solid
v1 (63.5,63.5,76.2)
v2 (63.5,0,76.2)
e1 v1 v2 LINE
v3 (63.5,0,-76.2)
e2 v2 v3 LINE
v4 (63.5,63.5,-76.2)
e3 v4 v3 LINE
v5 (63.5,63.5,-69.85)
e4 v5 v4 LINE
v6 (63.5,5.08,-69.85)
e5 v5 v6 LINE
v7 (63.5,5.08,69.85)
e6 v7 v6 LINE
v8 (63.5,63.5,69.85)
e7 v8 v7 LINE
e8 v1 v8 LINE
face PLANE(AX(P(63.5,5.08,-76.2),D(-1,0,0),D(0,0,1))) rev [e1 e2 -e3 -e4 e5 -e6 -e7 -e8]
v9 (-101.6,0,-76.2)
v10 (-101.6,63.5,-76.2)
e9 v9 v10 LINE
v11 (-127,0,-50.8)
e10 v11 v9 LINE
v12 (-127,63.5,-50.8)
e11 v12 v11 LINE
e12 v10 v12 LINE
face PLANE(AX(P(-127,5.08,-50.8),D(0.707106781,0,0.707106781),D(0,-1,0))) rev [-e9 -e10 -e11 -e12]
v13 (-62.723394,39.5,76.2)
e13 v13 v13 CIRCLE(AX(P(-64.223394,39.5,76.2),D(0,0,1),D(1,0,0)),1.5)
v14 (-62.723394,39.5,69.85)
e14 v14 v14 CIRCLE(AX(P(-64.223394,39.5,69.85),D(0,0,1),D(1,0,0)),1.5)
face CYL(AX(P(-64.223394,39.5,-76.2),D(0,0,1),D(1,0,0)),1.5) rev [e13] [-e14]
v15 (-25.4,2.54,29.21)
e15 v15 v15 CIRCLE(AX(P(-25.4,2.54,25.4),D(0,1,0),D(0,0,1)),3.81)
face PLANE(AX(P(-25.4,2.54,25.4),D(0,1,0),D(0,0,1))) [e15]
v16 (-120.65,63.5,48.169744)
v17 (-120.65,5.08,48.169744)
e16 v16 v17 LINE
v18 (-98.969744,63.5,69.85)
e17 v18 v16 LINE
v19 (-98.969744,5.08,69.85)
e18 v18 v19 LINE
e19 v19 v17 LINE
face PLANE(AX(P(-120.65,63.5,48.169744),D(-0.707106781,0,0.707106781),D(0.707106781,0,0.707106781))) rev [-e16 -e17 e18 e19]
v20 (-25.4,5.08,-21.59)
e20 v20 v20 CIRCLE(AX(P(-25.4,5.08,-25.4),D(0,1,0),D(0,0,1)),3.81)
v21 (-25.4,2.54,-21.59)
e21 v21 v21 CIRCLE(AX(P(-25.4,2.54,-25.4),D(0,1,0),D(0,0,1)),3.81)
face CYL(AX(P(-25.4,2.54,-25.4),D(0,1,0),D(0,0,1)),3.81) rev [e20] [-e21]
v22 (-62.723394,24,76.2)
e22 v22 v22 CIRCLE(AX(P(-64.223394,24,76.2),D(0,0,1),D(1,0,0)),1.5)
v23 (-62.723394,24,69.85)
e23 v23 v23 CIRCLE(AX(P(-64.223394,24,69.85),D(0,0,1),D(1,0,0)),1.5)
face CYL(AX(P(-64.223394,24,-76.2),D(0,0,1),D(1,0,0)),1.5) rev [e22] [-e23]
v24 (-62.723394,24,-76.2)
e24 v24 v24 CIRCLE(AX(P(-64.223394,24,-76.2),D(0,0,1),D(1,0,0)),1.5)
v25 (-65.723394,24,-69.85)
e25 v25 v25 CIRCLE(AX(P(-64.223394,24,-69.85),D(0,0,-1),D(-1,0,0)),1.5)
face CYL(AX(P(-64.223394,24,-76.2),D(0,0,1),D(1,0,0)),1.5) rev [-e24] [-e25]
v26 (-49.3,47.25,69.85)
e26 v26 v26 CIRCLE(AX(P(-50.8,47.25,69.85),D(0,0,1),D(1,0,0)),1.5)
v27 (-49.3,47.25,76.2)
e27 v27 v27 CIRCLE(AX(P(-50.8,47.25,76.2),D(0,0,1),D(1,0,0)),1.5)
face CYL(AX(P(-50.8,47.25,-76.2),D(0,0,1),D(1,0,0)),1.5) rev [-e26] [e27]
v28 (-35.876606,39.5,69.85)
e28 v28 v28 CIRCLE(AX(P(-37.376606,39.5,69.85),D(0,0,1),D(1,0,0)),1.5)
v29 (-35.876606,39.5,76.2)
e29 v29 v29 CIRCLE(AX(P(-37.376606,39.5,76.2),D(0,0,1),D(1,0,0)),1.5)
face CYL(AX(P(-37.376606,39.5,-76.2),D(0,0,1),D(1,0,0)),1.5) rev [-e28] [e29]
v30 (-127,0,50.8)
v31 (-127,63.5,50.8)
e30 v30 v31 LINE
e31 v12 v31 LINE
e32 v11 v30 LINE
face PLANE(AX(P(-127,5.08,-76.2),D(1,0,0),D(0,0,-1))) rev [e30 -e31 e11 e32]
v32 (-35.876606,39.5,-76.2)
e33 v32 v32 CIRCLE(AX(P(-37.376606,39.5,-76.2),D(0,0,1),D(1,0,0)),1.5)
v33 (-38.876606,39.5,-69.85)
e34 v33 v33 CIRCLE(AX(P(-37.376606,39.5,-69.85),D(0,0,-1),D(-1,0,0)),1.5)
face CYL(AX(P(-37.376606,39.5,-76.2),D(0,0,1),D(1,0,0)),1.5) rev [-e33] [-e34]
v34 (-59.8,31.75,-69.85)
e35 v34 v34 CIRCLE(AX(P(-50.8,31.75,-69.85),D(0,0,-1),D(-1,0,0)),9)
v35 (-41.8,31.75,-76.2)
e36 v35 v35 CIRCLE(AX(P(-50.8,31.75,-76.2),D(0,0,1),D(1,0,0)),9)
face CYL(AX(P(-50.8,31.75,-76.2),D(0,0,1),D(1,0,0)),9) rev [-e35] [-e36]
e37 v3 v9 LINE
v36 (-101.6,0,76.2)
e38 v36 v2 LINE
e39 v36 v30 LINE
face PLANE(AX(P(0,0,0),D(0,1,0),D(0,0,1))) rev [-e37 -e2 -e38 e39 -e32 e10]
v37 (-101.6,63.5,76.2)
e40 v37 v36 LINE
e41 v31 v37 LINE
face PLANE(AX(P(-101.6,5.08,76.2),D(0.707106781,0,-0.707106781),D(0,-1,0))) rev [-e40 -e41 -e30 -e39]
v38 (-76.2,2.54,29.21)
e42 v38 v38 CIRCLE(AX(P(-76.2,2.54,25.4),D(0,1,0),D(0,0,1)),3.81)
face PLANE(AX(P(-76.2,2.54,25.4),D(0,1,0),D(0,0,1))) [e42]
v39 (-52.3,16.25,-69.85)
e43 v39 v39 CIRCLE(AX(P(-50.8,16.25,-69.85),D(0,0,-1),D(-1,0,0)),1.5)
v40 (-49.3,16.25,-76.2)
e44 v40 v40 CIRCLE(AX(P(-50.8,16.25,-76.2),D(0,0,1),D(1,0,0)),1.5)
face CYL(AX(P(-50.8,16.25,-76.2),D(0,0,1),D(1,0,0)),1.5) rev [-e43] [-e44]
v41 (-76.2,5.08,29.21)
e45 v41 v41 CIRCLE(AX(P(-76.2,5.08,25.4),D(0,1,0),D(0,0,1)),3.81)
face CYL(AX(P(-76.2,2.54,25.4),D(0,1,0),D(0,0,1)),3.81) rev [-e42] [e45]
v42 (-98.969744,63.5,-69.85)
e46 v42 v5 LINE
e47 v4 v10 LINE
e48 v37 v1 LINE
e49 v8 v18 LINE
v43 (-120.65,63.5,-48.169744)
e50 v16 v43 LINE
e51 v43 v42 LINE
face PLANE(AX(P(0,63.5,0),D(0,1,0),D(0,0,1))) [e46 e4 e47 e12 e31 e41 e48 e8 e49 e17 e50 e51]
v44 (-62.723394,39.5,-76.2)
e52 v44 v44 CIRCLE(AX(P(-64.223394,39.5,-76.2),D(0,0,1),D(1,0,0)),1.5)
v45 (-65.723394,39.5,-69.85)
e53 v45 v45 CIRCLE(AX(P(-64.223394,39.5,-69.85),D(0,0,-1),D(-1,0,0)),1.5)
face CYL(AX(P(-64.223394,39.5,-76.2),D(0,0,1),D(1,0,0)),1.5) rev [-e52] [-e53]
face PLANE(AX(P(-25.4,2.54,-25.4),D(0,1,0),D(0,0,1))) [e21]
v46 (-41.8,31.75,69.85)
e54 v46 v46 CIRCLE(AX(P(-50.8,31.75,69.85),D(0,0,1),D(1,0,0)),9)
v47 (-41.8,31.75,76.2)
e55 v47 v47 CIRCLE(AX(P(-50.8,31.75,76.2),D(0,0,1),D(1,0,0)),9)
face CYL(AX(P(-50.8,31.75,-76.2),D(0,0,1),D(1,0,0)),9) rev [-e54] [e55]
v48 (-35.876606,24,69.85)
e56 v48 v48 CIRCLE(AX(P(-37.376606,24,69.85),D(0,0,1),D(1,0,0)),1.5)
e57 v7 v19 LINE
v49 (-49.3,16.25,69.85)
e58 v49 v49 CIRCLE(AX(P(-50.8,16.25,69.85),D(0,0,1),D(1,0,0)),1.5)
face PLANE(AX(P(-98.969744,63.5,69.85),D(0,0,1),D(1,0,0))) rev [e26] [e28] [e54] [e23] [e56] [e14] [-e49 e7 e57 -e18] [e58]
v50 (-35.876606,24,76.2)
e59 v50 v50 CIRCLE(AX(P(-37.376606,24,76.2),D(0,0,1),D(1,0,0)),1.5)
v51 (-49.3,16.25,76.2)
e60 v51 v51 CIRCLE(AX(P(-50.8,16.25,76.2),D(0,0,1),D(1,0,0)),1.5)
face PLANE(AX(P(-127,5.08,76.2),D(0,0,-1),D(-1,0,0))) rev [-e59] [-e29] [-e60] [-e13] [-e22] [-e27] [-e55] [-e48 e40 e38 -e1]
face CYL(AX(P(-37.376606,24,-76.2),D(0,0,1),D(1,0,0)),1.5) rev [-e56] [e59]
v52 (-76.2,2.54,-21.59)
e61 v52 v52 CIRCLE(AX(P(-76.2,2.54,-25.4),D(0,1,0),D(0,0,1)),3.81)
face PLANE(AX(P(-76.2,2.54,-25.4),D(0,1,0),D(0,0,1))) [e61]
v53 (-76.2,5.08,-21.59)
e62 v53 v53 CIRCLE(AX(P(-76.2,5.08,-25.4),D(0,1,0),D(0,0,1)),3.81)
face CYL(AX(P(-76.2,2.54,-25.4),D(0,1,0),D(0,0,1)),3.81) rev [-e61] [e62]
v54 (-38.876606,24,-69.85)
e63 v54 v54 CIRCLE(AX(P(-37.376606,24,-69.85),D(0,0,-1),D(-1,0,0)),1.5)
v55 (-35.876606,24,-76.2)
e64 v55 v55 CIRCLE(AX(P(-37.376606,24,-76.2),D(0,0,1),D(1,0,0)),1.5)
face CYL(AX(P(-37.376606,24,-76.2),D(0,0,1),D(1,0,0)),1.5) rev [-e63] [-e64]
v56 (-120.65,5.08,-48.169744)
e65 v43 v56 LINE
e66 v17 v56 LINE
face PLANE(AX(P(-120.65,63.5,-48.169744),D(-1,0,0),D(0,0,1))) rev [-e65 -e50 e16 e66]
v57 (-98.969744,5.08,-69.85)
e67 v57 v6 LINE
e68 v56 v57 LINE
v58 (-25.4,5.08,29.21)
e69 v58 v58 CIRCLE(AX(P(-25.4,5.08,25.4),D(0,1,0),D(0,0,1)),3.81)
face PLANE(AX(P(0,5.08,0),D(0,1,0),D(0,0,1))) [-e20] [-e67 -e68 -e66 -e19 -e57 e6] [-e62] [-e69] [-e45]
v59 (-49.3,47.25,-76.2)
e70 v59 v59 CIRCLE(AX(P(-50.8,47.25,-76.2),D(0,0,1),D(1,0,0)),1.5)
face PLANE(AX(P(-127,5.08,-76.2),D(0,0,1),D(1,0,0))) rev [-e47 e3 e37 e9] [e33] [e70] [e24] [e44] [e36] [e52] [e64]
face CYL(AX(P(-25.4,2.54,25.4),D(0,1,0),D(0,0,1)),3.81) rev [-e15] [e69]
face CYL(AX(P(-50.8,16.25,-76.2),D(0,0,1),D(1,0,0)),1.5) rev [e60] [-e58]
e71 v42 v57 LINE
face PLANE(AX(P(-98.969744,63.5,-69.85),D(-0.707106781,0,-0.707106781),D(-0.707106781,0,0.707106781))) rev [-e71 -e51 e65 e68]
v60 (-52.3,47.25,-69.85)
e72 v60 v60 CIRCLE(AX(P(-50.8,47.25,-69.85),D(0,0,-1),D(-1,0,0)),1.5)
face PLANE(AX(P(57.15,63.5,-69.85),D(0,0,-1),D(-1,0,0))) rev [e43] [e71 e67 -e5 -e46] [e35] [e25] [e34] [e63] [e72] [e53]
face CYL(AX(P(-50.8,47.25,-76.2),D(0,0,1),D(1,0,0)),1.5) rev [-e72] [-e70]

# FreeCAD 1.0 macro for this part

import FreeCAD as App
import Part
import Sketcher

V = App.Vector
Q = App.Units.Quantity


def edges_at(feature, points):
    """Names of the edges that pass closest to the given points."""
    edges = feature.Shape.Edges
    near = lambda p: min(range(len(edges)), key=lambda i: edges[i].distToShape(Part.Vertex(*p))[0])
    return sorted({f"Edge{near(p) + 1}" for p in points})


def add_polygon(sketch, points):
    """Adds a closed chain of lines whose ends are joined by coincident constraints."""
    first, n = sketch.GeometryCount, len(points)
    for a, b in zip(points, points[1:] + points[:1]):
        sketch.addGeometry(Part.LineSegment(App.Vector(*a, 0), App.Vector(*b, 0)), False)
    for i in range(n):
        sketch.addConstraint(Sketcher.Constraint("Coincident", first + i, 2, first + (i + 1) % n, 1))

doc = App.newDocument("Part")
body = doc.addObject("PartDesign::Body", "Body")

sketch1 = body.newObject("Sketcher::SketchObject", "Sketch")
sketch1.AttachmentSupport = (doc.getObject("XZ_Plane"), [""])
sketch1.MapMode = "FlatFace"
add_polygon(sketch1, [(-127, -76.2), (-127, 76.2), (63.5, 76.2), (63.5, -76.2)])
sketch1.addConstraint(Sketcher.Constraint("Vertical", 0))
sketch1.addConstraint(Sketcher.Constraint("Horizontal", 1))
sketch1.addConstraint(Sketcher.Constraint("Vertical", 2))
sketch1.addConstraint(Sketcher.Constraint("Horizontal", 3))
sketch1.addConstraint(Sketcher.Constraint("DistanceY", 0, 1, 0, 2, Q("6 in")))
sketch1.addConstraint(Sketcher.Constraint("DistanceX", 1, 1, 1, 2, Q("7.5 in")))
sketch1.addConstraint(Sketcher.Constraint("DistanceX", 0, 2, -1, 1, Q("5 in")))
sketch1.addConstraint(Sketcher.Constraint("DistanceY", -1, 1, 0, 2, Q("3 in")))
pad1 = body.newObject("PartDesign::Pad", "Pad")
pad1.Profile = sketch1
pad1.Length = Q("0.2 in")
pad1.Reversed = True
doc.recompute()

chamfer = body.newObject("PartDesign::Chamfer", "Chamfer")
chamfer.Base = (pad1, edges_at(pad1, [(-127, 2.54, -76.2), (-127, 2.54, 76.2)]))
chamfer.Size = Q("1 in")

sketch2 = body.newObject("Sketcher::SketchObject", "Sketch001")
sketch2.AttachmentSupport = (doc.getObject("XZ_Plane"), [""])
sketch2.MapMode = "FlatFace"
sketch2.AttachmentOffset = App.Placement(V(0, 0, -0.2 * 25.4), App.Rotation())
add_polygon(sketch2, [(-98.969744, -69.85), (63.5, -69.85), (63.5, -76.2), (-101.6, -76.2), (-127, -50.8), (-127, 50.8), (-101.6, 76.2), (63.5, 76.2), (63.5, 69.85), (-98.969744, 69.85), (-120.65, 48.169744), (-120.65, -48.169744)])
sketch2.addConstraint(Sketcher.Constraint("Horizontal", 0))
sketch2.addConstraint(Sketcher.Constraint("Vertical", 1))
sketch2.addConstraint(Sketcher.Constraint("Horizontal", 2))
sketch2.addConstraint(Sketcher.Constraint("Vertical", 4))
sketch2.addConstraint(Sketcher.Constraint("Horizontal", 6))
sketch2.addConstraint(Sketcher.Constraint("Vertical", 7))
sketch2.addConstraint(Sketcher.Constraint("Horizontal", 8))
sketch2.addConstraint(Sketcher.Constraint("Vertical", 10))
sketch2.addConstraint(Sketcher.Constraint("Symmetric", 2, 2, 5, 2, -1))
sketch2.addConstraint(Sketcher.Constraint("Symmetric", 0, 2, 7, 2, -1))
sketch2.addConstraint(Sketcher.Constraint("Perpendicular", 3, 5))
sketch2.addConstraint(Sketcher.Constraint("Parallel", 5, 9))
sketch2.addConstraint(Sketcher.Constraint("Perpendicular", 9, 11))
sketch2.addConstraint(Sketcher.Constraint("Vertical", 8, 2, 11, 2))
sketch2.addConstraint(Sketcher.Constraint("Equal", 3, 5))
sketch2.addConstraint(Sketcher.Constraint("DistanceY", 4, 1, 4, 2, Q("4 in")))
sketch2.addConstraint(Sketcher.Constraint("DistanceX", 2, 2, 2, 1, Q("6.5 in")))
sketch2.addConstraint(Sketcher.Constraint("DistanceY", 1, 2, -1, 1, Q("3 in")))
sketch2.addConstraint(Sketcher.Constraint("DistanceX", 2, 2, -1, 1, Q("4 in")))
sketch2.addConstraint(Sketcher.Constraint("DistanceY", 1, 2, 1, 1, Q("0.25 in")))
sketch2.addConstraint(Sketcher.Constraint("DistanceX", 9, 2, -1, 1, Q("4.75 in")))
sketch2.addConstraint(Sketcher.Constraint("DistanceX", 0, 1, 0, 2, Q("162.469744 mm")))
pad2 = body.newObject("PartDesign::Pad", "Pad001")
pad2.Profile = sketch2
pad2.Length = Q("2.3 in")
pad2.Reversed = True

sketch3 = body.newObject("Sketcher::SketchObject", "Sketch002")
sketch3.AttachmentSupport = (doc.getObject("XY_Plane"), [""])
sketch3.MapMode = "FlatFace"
sketch3.AttachmentOffset = App.Placement(V(0, 0, 3 * 25.4), App.Rotation())
sketch3.addGeometry(Part.Circle(V(-50.8, 31.75, 0), V(0, 0, 1), 9), False)
sketch3.addGeometry(Part.Circle(V(-50.8, 47.25, 0), V(0, 0, 1), 1.5), False)
sketch3.addGeometry(Part.Circle(V(-37.376606, 39.5, 0), V(0, 0, 1), 1.5), False)
sketch3.addGeometry(Part.Circle(V(-37.376606, 24, 0), V(0, 0, 1), 1.5), False)
sketch3.addGeometry(Part.Circle(V(-50.8, 16.25, 0), V(0, 0, 1), 1.5), False)
sketch3.addGeometry(Part.Circle(V(-64.223394, 24, 0), V(0, 0, 1), 1.5), False)
sketch3.addGeometry(Part.Circle(V(-64.223394, 39.5, 0), V(0, 0, 1), 1.5), False)
sketch3.addConstraint(Sketcher.Constraint("Equal", 1, 2))
sketch3.addConstraint(Sketcher.Constraint("Equal", 2, 3))
sketch3.addConstraint(Sketcher.Constraint("Equal", 3, 4))
sketch3.addConstraint(Sketcher.Constraint("Equal", 4, 5))
sketch3.addConstraint(Sketcher.Constraint("Equal", 5, 6))
sketch3.addConstraint(Sketcher.Constraint("Horizontal", 3, 3, 5, 3))
sketch3.addConstraint(Sketcher.Constraint("Horizontal", 2, 3, 6, 3))
sketch3.addConstraint(Sketcher.Constraint("Vertical", 0, 3, 1, 3))
sketch3.addConstraint(Sketcher.Constraint("Vertical", 2, 3, 3, 3))
sketch3.addConstraint(Sketcher.Constraint("Vertical", 1, 3, 4, 3))
sketch3.addConstraint(Sketcher.Constraint("Vertical", 5, 3, 6, 3))
sketch3.addConstraint(Sketcher.Constraint("DistanceX", 0, 3, -1, 1, Q("2 in")))
sketch3.addConstraint(Sketcher.Constraint("Diameter", 0, Q("18 mm")))
sketch3.addConstraint(Sketcher.Constraint("Diameter", 1, Q("3 mm")))
sketch3.addConstraint(Sketcher.Constraint("DistanceY", -1, 1, 0, 3, Q("1.25 in")))
sketch3.addConstraint(Sketcher.Constraint("DistanceY", -1, 1, 1, 3, Q("47.25 mm")))
sketch3.addConstraint(Sketcher.Constraint("DistanceY", -1, 1, 2, 3, Q("39.5 mm")))
sketch3.addConstraint(Sketcher.Constraint("DistanceY", -1, 1, 3, 3, Q("24 mm")))
sketch3.addConstraint(Sketcher.Constraint("DistanceY", -1, 1, 4, 3, Q("16.25 mm")))
sketch3.addConstraint(Sketcher.Constraint("DistanceX", 2, 3, -1, 1, Q("37.376606 mm")))
sketch3.addConstraint(Sketcher.Constraint("DistanceX", 5, 3, -1, 1, Q("64.223394 mm")))
pocket1 = body.newObject("PartDesign::Pocket", "Pocket")
pocket1.Profile = sketch3
pocket1.Type = "ThroughAll"

sketch4 = body.newObject("Sketcher::SketchObject", "Sketch003")
sketch4.AttachmentSupport = (doc.getObject("XZ_Plane"), [""])
sketch4.MapMode = "FlatFace"
sketch4.AttachmentOffset = App.Placement(V(0, 0, -0.2 * 25.4), App.Rotation())
sketch4.addGeometry(Part.Circle(V(-76.2, -25.4, 0), V(0, 0, 1), 3.81), False)
sketch4.addGeometry(Part.Circle(V(-25.4, -25.4, 0), V(0, 0, 1), 3.81), False)
sketch4.addGeometry(Part.Circle(V(-25.4, 25.4, 0), V(0, 0, 1), 3.81), False)
sketch4.addGeometry(Part.Circle(V(-76.2, 25.4, 0), V(0, 0, 1), 3.81), False)
sketch4.addConstraint(Sketcher.Constraint("Equal", 0, 1))
sketch4.addConstraint(Sketcher.Constraint("Equal", 1, 2))
sketch4.addConstraint(Sketcher.Constraint("Equal", 2, 3))
sketch4.addConstraint(Sketcher.Constraint("Symmetric", 1, 3, 2, 3, -1))
sketch4.addConstraint(Sketcher.Constraint("Symmetric", 0, 3, 3, 3, -1))
sketch4.addConstraint(Sketcher.Constraint("Horizontal", 0, 3, 1, 3))
sketch4.addConstraint(Sketcher.Constraint("Diameter", 0, Q("0.3 in")))
sketch4.addConstraint(Sketcher.Constraint("DistanceX", 0, 3, -1, 1, Q("3 in")))
sketch4.addConstraint(Sketcher.Constraint("DistanceY", 0, 3, -1, 1, Q("1 in")))
sketch4.addConstraint(Sketcher.Constraint("DistanceX", 1, 3, -1, 1, Q("1 in")))
pocket2 = body.newObject("PartDesign::Pocket", "Pocket001")
pocket2.Profile = sketch4
pocket2.Length = Q("0.1 in")
pocket2.Reversed = True

doc.recompute()
